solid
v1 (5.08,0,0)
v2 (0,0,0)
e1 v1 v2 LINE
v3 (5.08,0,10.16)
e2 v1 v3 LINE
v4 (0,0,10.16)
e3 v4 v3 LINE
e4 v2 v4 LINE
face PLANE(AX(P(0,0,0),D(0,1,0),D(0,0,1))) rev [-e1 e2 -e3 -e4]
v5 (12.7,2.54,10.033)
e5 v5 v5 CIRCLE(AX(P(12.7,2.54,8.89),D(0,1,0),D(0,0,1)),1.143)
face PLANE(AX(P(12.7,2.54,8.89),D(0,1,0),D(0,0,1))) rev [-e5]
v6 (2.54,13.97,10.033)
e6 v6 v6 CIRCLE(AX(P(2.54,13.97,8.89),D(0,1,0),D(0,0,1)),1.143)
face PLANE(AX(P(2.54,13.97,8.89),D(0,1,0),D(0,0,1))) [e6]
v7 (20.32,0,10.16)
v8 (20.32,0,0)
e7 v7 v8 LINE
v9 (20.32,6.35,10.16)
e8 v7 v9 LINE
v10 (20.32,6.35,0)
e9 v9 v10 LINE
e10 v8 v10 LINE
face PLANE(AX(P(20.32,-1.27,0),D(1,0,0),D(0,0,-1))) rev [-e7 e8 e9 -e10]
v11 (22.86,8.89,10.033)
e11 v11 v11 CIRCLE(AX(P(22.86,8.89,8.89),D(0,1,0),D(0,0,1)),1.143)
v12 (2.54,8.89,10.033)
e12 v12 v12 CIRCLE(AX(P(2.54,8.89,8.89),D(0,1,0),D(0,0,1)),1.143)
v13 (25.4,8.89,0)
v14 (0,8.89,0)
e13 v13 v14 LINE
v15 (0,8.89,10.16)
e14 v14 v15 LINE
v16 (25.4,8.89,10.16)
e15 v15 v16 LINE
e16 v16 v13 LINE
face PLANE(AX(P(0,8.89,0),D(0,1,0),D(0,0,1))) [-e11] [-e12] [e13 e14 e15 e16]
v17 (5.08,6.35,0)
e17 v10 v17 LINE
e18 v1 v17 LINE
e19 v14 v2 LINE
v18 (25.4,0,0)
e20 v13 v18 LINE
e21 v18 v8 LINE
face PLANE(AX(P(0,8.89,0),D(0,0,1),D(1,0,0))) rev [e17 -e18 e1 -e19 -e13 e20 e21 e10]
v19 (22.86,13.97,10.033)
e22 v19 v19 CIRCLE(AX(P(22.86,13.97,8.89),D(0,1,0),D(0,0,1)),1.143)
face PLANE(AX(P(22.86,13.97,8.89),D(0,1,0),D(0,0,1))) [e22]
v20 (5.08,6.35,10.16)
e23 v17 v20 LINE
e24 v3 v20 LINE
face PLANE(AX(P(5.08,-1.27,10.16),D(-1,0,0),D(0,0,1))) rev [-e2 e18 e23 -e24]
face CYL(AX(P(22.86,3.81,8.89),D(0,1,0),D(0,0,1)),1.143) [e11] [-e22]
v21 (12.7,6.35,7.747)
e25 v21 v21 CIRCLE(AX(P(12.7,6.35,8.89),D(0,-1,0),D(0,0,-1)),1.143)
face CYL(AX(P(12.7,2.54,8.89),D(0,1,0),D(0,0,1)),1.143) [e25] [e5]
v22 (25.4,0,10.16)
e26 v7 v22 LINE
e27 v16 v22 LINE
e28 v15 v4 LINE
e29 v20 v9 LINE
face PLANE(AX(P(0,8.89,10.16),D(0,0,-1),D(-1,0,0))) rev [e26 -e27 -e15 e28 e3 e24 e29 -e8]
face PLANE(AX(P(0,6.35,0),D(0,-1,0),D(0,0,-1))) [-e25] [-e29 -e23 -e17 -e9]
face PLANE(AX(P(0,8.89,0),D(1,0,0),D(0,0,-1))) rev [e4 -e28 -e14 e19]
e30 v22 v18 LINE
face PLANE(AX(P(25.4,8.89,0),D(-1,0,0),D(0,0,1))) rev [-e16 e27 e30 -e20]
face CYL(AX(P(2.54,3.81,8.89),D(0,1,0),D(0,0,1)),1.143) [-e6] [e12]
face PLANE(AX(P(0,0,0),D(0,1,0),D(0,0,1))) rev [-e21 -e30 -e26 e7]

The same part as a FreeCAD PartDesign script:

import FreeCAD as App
import Part
import Sketcher
Q = App.Units.Quantity


def add_polygon(sketch, points):
    """Adds a closed chain of lines whose ends are joined by coincident constraints."""
    first, n = sketch.GeometryCount, len(points)
    for a, b in zip(points, points[1:] + points[:1]):
        sketch.addGeometry(Part.LineSegment(App.Vector(*a, 0), App.Vector(*b, 0)), False)
    for i in range(n):
        sketch.addConstraint(Sketcher.Constraint("Coincident", first + i, 2, first + (i + 1) % n, 1))

doc = App.newDocument("Part")
body = doc.addObject("PartDesign::Body", "Body")

sketch1 = body.newObject("Sketcher::SketchObject", "Sketch")
sketch1.AttachmentSupport = (doc.getObject("XZ_Plane"), [""])
sketch1.MapMode = "FlatFace"
add_polygon(sketch1, [(0, 0), (0, 10), (25, 10), (25, 0)])
sketch1.addConstraint(Sketcher.Constraint("Vertical", 0))
sketch1.addConstraint(Sketcher.Constraint("Horizontal", 1))
sketch1.addConstraint(Sketcher.Constraint("Vertical", 2))
sketch1.addConstraint(Sketcher.Constraint("Horizontal", 3))
sketch1.addConstraint(Sketcher.Constraint("Coincident", 3, 2, -1, 1))
sketch1.addConstraint(Sketcher.Constraint("DistanceX", 1, 1, 1, 2, Q("1 in")))
sketch1.addConstraint(Sketcher.Constraint("DistanceY", 0, 1, 0, 2, Q("0.4 in")))
pad1 = body.newObject("PartDesign::Pad", "Pad")
pad1.Profile = sketch1
pad1.Length = Q("0.35 in")
pad1.Reversed = True

sketch2 = body.newObject("Sketcher::SketchObject", "Sketch001")
sketch2.AttachmentSupport = (doc.getObject("XZ_Plane"), [""])
sketch2.MapMode = "FlatFace"
sketch2.AttachmentOffset = App.Placement(App.Vector(0, 0, -0.25 * 25.4), App.Rotation())
add_polygon(sketch2, [(5, 0), (5, 10), (20, 10), (20, 0)])
sketch2.addConstraint(Sketcher.Constraint("Vertical", 0))
sketch2.addConstraint(Sketcher.Constraint("Horizontal", 1))
sketch2.addConstraint(Sketcher.Constraint("Vertical", 2))
sketch2.addConstraint(Sketcher.Constraint("Horizontal", 3))
sketch2.addConstraint(Sketcher.Constraint("PointOnObject", 2, 2, -1))
sketch2.addConstraint(Sketcher.Constraint("DistanceX", 1, 1, 1, 2, Q("0.6 in")))
sketch2.addConstraint(Sketcher.Constraint("DistanceY", 0, 1, 0, 2, Q("0.4 in")))
sketch2.addConstraint(Sketcher.Constraint("DistanceX", -1, 1, 0, 2, Q("0.2 in")))
pocket1 = body.newObject("PartDesign::Pocket", "Pocket")
pocket1.Profile = sketch2
pocket1.Length = Q("0.3 in")
pocket1.Reversed = True

sketch3 = body.newObject("Sketcher::SketchObject", "Sketch002")
sketch3.AttachmentSupport = (doc.getObject("XZ_Plane"), [""])
sketch3.MapMode = "FlatFace"
sketch3.AttachmentOffset = App.Placement(App.Vector(0, 0, -0.35 * 25.4), App.Rotation())
sketch3.addGeometry(Part.Circle(App.Vector(2.5, 8.9, 0), App.Vector(0, 0, 1), 1.1), False)
sketch3.addGeometry(Part.Circle(App.Vector(22.9, 8.9, 0), App.Vector(0, 0, 1), 1.1), False)
sketch3.addConstraint(Sketcher.Constraint("Equal", 0, 1))
sketch3.addConstraint(Sketcher.Constraint("Horizontal", 0, 3, 1, 3))
sketch3.addConstraint(Sketcher.Constraint("Diameter", 0, Q("0.09 in")))
sketch3.addConstraint(Sketcher.Constraint("DistanceX", -1, 1, 0, 3, Q("0.1 in")))
sketch3.addConstraint(Sketcher.Constraint("DistanceX", -1, 1, 1, 3, Q("0.9 in")))
sketch3.addConstraint(Sketcher.Constraint("DistanceY", -1, 1, 0, 3, Q("0.35 in")))
pad2 = body.newObject("PartDesign::Pad", "Pad001")
pad2.Profile = sketch3
pad2.Type = "TwoLengths"
pad2.Length = Q("0.2 in")
pad2.Length2 = Q("0.2 in")
pad2.Reversed = True

sketch4 = body.newObject("Sketcher::SketchObject", "Sketch003")
sketch4.AttachmentSupport = (doc.getObject("XZ_Plane"), [""])
sketch4.MapMode = "FlatFace"
sketch4.AttachmentOffset = App.Placement(App.Vector(0, 0, -0.35 * 25.4), App.Rotation())
sketch4.addGeometry(Part.Circle(App.Vector(12.7, 8.9, 0), App.Vector(0, 0, 1), 1.1), False)
sketch4.addConstraint(Sketcher.Constraint("Diameter", 0, Q("0.09 in")))
sketch4.addConstraint(Sketcher.Constraint("DistanceX", -1, 1, 0, 3, Q("0.5 in")))
sketch4.addConstraint(Sketcher.Constraint("DistanceY", -1, 1, 0, 3, Q("0.35 in")))
pad3 = body.newObject("PartDesign::Pad", "Pad002")
pad3.Profile = sketch4
pad3.Length = Q("0.25 in")

doc.recompute()
